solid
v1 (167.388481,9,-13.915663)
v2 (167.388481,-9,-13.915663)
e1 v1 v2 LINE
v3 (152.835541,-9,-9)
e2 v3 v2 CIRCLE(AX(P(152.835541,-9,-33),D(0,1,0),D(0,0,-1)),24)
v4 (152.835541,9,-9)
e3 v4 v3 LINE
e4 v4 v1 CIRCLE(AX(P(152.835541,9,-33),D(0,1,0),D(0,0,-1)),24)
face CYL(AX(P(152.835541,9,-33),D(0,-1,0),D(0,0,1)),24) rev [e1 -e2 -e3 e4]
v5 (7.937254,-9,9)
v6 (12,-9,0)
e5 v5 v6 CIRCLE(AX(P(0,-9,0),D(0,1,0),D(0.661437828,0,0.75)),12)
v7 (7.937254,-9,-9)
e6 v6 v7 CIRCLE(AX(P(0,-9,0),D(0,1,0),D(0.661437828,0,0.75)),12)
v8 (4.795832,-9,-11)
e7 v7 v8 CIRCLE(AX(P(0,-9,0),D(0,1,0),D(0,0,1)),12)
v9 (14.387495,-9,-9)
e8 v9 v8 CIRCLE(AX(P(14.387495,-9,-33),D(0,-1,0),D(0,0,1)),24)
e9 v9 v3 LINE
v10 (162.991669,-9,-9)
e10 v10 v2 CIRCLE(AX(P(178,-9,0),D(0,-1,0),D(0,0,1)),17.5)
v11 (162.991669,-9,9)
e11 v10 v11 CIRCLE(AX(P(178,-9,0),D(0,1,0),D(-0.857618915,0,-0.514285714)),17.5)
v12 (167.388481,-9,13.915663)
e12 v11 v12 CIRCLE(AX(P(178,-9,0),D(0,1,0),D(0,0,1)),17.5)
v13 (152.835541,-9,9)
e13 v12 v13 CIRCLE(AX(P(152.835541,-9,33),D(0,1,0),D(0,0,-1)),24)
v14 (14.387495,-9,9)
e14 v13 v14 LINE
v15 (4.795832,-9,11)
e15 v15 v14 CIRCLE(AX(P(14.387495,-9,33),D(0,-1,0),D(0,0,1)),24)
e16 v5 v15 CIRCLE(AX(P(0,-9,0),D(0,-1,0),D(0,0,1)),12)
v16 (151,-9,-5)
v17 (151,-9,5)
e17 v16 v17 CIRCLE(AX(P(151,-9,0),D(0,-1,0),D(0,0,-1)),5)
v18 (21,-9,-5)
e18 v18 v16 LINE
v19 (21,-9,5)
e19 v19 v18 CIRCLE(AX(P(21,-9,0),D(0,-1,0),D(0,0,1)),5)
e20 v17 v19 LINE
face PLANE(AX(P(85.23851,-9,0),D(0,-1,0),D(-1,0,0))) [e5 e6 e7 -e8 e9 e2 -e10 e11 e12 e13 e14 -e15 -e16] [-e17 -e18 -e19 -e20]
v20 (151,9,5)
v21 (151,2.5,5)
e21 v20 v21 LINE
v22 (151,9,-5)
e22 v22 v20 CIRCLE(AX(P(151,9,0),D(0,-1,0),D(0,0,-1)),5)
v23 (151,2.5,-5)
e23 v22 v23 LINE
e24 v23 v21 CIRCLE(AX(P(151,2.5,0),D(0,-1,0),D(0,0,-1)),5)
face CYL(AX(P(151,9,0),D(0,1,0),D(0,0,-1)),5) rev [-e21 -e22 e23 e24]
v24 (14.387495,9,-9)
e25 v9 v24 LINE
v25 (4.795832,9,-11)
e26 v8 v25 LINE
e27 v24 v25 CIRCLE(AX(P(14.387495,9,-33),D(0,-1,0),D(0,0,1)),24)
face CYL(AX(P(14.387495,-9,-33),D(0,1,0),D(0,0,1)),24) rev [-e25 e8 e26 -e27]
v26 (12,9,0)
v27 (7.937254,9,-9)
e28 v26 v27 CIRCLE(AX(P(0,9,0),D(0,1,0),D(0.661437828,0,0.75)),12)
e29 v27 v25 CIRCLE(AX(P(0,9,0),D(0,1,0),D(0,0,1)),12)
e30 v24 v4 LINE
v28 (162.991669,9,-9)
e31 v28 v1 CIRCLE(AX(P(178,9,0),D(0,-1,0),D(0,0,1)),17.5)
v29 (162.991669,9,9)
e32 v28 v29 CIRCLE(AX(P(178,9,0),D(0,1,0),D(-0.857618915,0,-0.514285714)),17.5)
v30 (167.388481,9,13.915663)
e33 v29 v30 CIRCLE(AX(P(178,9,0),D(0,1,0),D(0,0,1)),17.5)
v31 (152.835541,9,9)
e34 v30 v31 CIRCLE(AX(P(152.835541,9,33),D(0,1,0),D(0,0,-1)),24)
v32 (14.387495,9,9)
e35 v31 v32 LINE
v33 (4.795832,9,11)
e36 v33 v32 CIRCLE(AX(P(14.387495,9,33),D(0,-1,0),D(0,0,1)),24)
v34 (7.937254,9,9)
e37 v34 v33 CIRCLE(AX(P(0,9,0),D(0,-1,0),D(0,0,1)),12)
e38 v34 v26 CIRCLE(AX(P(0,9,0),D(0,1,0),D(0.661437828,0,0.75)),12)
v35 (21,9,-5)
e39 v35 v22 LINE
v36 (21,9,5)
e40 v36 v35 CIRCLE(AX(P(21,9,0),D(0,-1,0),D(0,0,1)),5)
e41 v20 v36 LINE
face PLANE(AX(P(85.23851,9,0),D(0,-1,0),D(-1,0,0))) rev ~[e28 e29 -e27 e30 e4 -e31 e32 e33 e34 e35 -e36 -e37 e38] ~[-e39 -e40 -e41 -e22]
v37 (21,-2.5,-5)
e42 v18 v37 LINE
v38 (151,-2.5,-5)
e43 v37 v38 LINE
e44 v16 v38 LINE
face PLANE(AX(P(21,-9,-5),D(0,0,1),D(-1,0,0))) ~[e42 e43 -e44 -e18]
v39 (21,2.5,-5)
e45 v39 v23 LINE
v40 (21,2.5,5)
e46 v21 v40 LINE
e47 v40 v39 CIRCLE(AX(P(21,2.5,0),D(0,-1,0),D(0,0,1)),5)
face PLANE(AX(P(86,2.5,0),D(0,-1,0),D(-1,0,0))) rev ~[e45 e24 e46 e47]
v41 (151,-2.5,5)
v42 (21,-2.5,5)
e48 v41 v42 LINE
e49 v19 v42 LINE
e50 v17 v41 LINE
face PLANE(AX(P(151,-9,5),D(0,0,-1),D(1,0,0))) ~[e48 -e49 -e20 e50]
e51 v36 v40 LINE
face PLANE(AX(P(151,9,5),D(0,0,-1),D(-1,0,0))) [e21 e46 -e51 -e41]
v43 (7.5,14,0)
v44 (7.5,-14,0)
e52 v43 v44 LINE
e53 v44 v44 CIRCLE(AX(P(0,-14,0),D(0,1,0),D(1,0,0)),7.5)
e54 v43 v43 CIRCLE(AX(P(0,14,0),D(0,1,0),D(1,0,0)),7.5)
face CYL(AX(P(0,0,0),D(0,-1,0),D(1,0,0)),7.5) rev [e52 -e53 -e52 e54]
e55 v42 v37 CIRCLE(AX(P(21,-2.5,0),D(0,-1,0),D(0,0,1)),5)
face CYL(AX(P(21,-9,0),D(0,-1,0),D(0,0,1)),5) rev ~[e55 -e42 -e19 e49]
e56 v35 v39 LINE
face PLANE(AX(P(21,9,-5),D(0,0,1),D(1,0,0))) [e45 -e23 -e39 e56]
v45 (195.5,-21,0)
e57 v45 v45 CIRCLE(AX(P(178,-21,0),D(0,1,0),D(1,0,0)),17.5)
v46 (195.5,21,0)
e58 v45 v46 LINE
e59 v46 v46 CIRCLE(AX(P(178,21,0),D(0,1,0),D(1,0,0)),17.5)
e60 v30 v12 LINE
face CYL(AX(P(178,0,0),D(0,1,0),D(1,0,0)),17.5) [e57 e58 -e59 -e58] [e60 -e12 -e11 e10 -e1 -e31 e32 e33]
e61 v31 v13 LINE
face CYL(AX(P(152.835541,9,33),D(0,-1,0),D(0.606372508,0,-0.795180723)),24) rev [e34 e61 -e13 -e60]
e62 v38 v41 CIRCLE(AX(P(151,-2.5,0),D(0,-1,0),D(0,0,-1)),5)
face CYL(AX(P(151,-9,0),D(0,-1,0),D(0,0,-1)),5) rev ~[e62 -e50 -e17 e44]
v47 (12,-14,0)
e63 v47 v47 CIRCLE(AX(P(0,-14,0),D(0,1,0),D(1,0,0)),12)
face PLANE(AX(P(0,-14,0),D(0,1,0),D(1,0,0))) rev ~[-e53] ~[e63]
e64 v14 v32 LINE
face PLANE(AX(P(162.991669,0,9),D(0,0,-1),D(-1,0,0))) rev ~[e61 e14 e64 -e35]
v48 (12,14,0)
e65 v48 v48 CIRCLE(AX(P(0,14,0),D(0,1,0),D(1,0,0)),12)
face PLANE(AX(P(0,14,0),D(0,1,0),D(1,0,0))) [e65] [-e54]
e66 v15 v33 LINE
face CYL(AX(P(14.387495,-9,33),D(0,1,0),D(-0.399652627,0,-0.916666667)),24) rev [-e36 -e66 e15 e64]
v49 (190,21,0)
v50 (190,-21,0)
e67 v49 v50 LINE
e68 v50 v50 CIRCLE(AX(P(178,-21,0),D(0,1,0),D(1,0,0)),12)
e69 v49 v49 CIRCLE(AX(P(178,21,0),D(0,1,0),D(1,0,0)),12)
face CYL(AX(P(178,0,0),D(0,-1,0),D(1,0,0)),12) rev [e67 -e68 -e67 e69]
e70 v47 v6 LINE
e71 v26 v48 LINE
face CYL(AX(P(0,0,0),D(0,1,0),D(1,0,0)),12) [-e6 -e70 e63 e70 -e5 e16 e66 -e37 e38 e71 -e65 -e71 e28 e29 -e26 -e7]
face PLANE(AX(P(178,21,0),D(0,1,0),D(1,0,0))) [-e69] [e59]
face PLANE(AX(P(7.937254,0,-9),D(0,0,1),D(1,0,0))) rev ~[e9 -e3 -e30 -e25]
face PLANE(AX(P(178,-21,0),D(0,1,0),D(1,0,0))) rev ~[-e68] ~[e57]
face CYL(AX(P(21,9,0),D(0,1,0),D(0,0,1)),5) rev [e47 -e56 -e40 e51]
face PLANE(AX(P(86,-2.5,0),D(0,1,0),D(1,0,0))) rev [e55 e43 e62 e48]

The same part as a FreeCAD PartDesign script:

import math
import FreeCAD as App
import Part
import Sketcher

V = App.Vector


def edges_at(feature, points):
    """Names of the edges that pass closest to the given points."""
    edges = feature.Shape.Edges
    near = lambda p: min(range(len(edges)), key=lambda i: edges[i].distToShape(Part.Vertex(*p))[0])
    return sorted({f"Edge{near(p) + 1}" for p in points})

doc = App.newDocument("Part")
body = doc.addObject("PartDesign::Body", "Body")

# Sketch on XZ plane
sketch1 = body.newObject("Sketcher::SketchObject", "Sketch")
sketch1.AttachmentSupport = (doc.getObject("XZ_Plane"), [""])
sketch1.MapMode = "FlatFace"
sketch1.addGeometry(Part.Circle(V(0, 0, 0), V(0, 0, 1), 12), False)
sketch1.addGeometry(Part.Circle(V(0, 0, 0), V(0, 0, 1), 7.5), False)
sketch1.addConstraint(Sketcher.Constraint("Coincident", 0, 3, -1, 1))
sketch1.addConstraint(Sketcher.Constraint("Coincident", 1, 3, -1, 1))
sketch1.addConstraint(Sketcher.Constraint("Diameter", 0, 24.0))
sketch1.addConstraint(Sketcher.Constraint("Diameter", 1, 15.0))
pad1 = body.newObject("PartDesign::Pad", "Pad")
pad1.Profile = sketch1
pad1.Length = 28
pad1.Midplane = True
body2 = doc.addObject("PartDesign::Body", "Body001")

# Sketch on XZ plane
sketch2 = body2.newObject("Sketcher::SketchObject", "Sketch001")
sketch2.AttachmentSupport = (doc.getObject("XZ_Plane001"), [""])
sketch2.MapMode = "FlatFace"
sketch2.addGeometry(Part.Circle(V(178, 0, 0), V(0, 0, 1), 17.5), False)
sketch2.addGeometry(Part.Circle(V(178, 0, 0), V(0, 0, 1), 12), False)
sketch2.addConstraint(Sketcher.Constraint("Coincident", 1, 3, 0, 3))
sketch2.addConstraint(Sketcher.Constraint("PointOnObject", 0, 3, -1))
sketch2.addConstraint(Sketcher.Constraint("Diameter", 0, 35.0))
sketch2.addConstraint(Sketcher.Constraint("Diameter", 1, 24.0))
sketch2.addConstraint(Sketcher.Constraint("DistanceX", -1, 1, 0, 3, 178.0))
pad2 = body2.newObject("PartDesign::Pad", "Pad001")
pad2.Profile = sketch2
pad2.Length = 42
pad2.Midplane = True
body.AllowCompound = True
doc.recompute()

boolean = body.newObject("PartDesign::Boolean", "Boolean")
boolean.Type = "Fuse"
boolean.addObjects([body2])

# Sketch on XZ plane
sketch3 = body.newObject("Sketcher::SketchObject", "Sketch002")
sketch3.AttachmentSupport = (doc.getObject("XZ_Plane"), [""])
sketch3.MapMode = "FlatFace"
sketch3.addGeometry(Part.LineSegment(V(162.991669, -9, 0), V(7.937254, -9, 0)), False)
sketch3.addGeometry(Part.ArcOfCircle(Part.Circle(V(0, 0, 0), V(0, 0, 1), 12), math.radians(-48.590378), math.radians(48.590378)), False)
sketch3.addGeometry(Part.LineSegment(V(7.937254, 9, 0), V(162.991669, 9, 0)), False)
sketch3.addGeometry(Part.ArcOfCircle(Part.Circle(V(178, 0, 0), V(0, 0, 1), 17.5), math.radians(149.050277), math.radians(210.949723)), False)
sketch3.addConstraint(Sketcher.Constraint("Coincident", 0, 2, 1, 1))
sketch3.addConstraint(Sketcher.Constraint("Coincident", 1, 2, 2, 1))
sketch3.addConstraint(Sketcher.Constraint("Coincident", 2, 2, 3, 1))
sketch3.addConstraint(Sketcher.Constraint("Coincident", 3, 2, 0, 1))
sketch3.addConstraint(Sketcher.Constraint("Horizontal", 0))
sketch3.addConstraint(Sketcher.Constraint("Horizontal", 2))
sketch3.addConstraint(Sketcher.Constraint("Coincident", 1, 3, -1, 1))
sketch3.addConstraint(Sketcher.Constraint("Symmetric", 2, 2, 3, 2, -1))
sketch3.addConstraint(Sketcher.Constraint("Radius", 1, 12.0))
sketch3.addConstraint(Sketcher.Constraint("Radius", 3, 17.5))
sketch3.addConstraint(Sketcher.Constraint("DistanceX", -1, 1, 3, 3, 178.0))
sketch3.addConstraint(Sketcher.Constraint("DistanceY", 0, 2, -1, 1, 9.0))
pad3 = body.newObject("PartDesign::Pad", "Pad002")
pad3.Profile = sketch3
pad3.Length = 18
pad3.Midplane = True

# Sketch on XZ plane
sketch4 = body.newObject("Sketcher::SketchObject", "Sketch003")
sketch4.AttachmentSupport = (doc.getObject("XZ_Plane"), [""])
sketch4.MapMode = "FlatFace"
sketch4.AttachmentOffset = App.Placement(V(0, 0, -9), App.Rotation())
sketch4.addGeometry(Part.LineSegment(V(151, -5, 0), V(21, -5, 0)), False)
sketch4.addGeometry(Part.ArcOfCircle(Part.Circle(V(21, 0, 0), V(0, 0, 1), 5), math.radians(90), math.radians(270)), False)
sketch4.addGeometry(Part.LineSegment(V(21, 5, 0), V(151, 5, 0)), False)
sketch4.addGeometry(Part.ArcOfCircle(Part.Circle(V(151, 0, 0), V(0, 0, 1), 5), math.radians(-90), math.radians(90)), False)
sketch4.addConstraint(Sketcher.Constraint("Tangent", 0, 2, 1, 2))
sketch4.addConstraint(Sketcher.Constraint("Tangent", 1, 1, 2, 1))
sketch4.addConstraint(Sketcher.Constraint("Tangent", 2, 2, 3, 2))
sketch4.addConstraint(Sketcher.Constraint("Tangent", 3, 1, 0, 1))
sketch4.addConstraint(Sketcher.Constraint("Horizontal", 0))
sketch4.addConstraint(Sketcher.Constraint("Horizontal", 2))
sketch4.addConstraint(Sketcher.Constraint("PointOnObject", 1, 3, -1))
sketch4.addConstraint(Sketcher.Constraint("Radius", 1, 5.0))
sketch4.addConstraint(Sketcher.Constraint("DistanceX", 0, 2, 0, 1, 130.0))
sketch4.addConstraint(Sketcher.Constraint("DistanceX", -1, 1, 1, 3, 21.0))
pocket1 = body.newObject("PartDesign::Pocket", "Pocket")
pocket1.Profile = sketch4
pocket1.Length = 6.5
pocket1.Reversed = True
doc.recompute()

mirrored = body.newObject("PartDesign::Mirrored", "Mirrored")
mirrored.Originals = [pocket1]
mirrored.MirrorPlane = (doc.getObject("XZ_Plane"), [""])
body.Tip = mirrored
doc.recompute()

fillet = body.newObject("PartDesign::Fillet", "Fillet")
fillet.Base = (mirrored, edges_at(mirrored, [
    (7.937, 0, -9),
    (7.937, 0, 9),
    (162.992, 0, 9),
    (162.992, 0, -9),
]))
fillet.Radius = 24

doc.recompute()
